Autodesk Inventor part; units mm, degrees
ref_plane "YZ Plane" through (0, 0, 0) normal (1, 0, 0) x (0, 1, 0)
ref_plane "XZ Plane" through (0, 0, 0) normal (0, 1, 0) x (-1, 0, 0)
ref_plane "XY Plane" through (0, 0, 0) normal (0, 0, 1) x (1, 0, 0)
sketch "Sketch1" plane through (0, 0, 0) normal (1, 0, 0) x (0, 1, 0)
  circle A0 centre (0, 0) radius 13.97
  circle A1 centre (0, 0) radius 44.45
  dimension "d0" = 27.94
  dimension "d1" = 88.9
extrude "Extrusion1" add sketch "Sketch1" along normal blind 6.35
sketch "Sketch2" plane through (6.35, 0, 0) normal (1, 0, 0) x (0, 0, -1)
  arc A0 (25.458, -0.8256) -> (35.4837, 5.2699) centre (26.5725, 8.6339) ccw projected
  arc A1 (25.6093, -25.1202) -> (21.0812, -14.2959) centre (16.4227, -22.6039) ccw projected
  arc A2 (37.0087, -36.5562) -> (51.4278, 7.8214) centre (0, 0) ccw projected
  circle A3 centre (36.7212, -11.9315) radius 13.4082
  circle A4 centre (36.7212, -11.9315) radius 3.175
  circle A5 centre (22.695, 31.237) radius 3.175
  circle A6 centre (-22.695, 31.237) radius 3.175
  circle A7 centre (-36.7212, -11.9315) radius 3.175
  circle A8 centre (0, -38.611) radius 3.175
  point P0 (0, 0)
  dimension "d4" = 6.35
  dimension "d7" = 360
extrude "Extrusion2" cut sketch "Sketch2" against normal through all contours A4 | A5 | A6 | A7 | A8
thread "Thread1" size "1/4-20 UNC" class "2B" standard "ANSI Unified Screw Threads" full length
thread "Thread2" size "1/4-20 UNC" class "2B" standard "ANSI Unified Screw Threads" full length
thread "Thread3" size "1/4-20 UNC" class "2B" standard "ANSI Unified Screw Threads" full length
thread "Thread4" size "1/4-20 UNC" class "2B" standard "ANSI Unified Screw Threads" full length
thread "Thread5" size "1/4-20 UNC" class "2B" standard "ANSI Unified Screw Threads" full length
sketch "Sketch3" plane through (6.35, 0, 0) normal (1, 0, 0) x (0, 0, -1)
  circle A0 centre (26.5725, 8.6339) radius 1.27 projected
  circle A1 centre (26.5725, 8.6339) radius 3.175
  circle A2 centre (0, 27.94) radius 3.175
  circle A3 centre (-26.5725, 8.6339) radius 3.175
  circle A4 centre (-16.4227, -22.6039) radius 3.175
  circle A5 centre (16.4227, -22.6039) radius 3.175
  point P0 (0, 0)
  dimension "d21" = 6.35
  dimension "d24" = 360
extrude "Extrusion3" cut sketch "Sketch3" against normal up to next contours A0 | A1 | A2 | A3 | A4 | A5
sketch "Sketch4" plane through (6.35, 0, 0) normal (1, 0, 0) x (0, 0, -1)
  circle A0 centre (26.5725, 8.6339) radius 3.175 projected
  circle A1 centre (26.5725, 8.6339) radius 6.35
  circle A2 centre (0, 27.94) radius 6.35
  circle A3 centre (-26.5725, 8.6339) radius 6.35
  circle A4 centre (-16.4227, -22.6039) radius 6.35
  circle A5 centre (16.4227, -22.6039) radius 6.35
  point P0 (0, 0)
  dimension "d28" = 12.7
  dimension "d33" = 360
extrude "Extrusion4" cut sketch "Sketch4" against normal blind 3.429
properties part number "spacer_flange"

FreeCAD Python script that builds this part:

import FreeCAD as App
import Part
import Sketcher
Q = App.Units.Quantity

doc = App.newDocument("Part")
params = doc.addObject("Spreadsheet::Sheet", "Params")
for row, (alias, value) in enumerate([
    ("sketch1_diameter", "3.5 in"),
    ("sketch1_diameter2", "1.1 in"),
    ("pad1_length", "0.25 in"),
    ("sketch2_diameter", "0.25 in"),
    ("sketch3_diameter", "0.25 in"),
    ("pocket2_length", "0.25 in"),
    ("sketch4_diameter", "0.5 in"),
    ("sketch4_diameter2", "0.25 in"),
    ("pocket3_length", "0.135 in"),
], start=1):
    params.set(f"A{row}", alias)
    params.set(f"B{row}", "=" + value)
    params.setAlias(f"B{row}", alias)

body = doc.addObject("PartDesign::Body", "Body")

# Sketch on YZ plane
sketch1 = doc.addObject("Sketcher::SketchObject", "Sketch")
body.addObject(sketch1)
sketch1.AttachmentSupport = (doc.YZ_Plane, [""])
sketch1.MapMode = "FlatFace"
sketch1.addGeometry(Part.Circle(App.Vector(0, 0, 0), App.Vector(0, 0, 1), 44), False)
sketch1.addGeometry(Part.Circle(App.Vector(0, 0, 0), App.Vector(0, 0, 1), 14), False)
sketch1.addConstraint(Sketcher.Constraint("Coincident", 0, 3, -1, 1))
sketch1.addConstraint(Sketcher.Constraint("Coincident", 1, 3, -1, 1))
sketch1.addConstraint(Sketcher.Constraint("Diameter", 0, Q("3.5 in")))
sketch1.addConstraint(Sketcher.Constraint("Diameter", 1, Q("1.1 in")))
sketch1.setExpression("Constraints[2]", "Params.sketch1_diameter")
sketch1.setExpression("Constraints[3]", "Params.sketch1_diameter2")
pad1 = doc.addObject("PartDesign::Pad", "Pad")
body.addObject(pad1)
pad1.Profile = sketch1
pad1.setExpression("Length", "Params.pad1_length")

# Sketch on YZ plane
sketch2 = doc.addObject("Sketcher::SketchObject", "Sketch001")
body.addObject(sketch2)
sketch2.AttachmentSupport = (doc.YZ_Plane, [""])
sketch2.MapMode = "FlatFace"
sketch2.AttachmentOffset = App.Placement(App.Vector(0, 0, 0.25 * 25.4), App.Rotation())
sketch2.addGeometry(Part.Circle(App.Vector(-11.9, -36.7, 0), App.Vector(0, 0, 1), 3.2), False)
sketch2.addGeometry(Part.Circle(App.Vector(31.2, -22.7, 0), App.Vector(0, 0, 1), 3.2), False)
sketch2.addGeometry(Part.Circle(App.Vector(31.2, 22.7, 0), App.Vector(0, 0, 1), 3.2), False)
sketch2.addGeometry(Part.Circle(App.Vector(-11.9, 36.7, 0), App.Vector(0, 0, 1), 3.2), False)
sketch2.addGeometry(Part.Circle(App.Vector(-38.6, 0, 0), App.Vector(0, 0, 1), 3.2), False)
sketch2.addConstraint(Sketcher.Constraint("Equal", 0, 1))
sketch2.addConstraint(Sketcher.Constraint("Equal", 1, 2))
sketch2.addConstraint(Sketcher.Constraint("Equal", 2, 3))
sketch2.addConstraint(Sketcher.Constraint("Equal", 3, 4))
sketch2.addConstraint(Sketcher.Constraint("Symmetric", 1, 3, 2, 3, -1))
sketch2.addConstraint(Sketcher.Constraint("Symmetric", 0, 3, 3, 3, -1))
sketch2.addConstraint(Sketcher.Constraint("PointOnObject", 4, 3, -1))
sketch2.addConstraint(Sketcher.Constraint("Diameter", 0, Q("0.25 in")))
sketch2.addConstraint(Sketcher.Constraint("DistanceY", 1, 3, 2, 3, Q("1.787 in")))
sketch2.addConstraint(Sketcher.Constraint("DistanceX", -1, 1, 1, 3, Q("1.2298 in")))
sketch2.addConstraint(Sketcher.Constraint("DistanceX", 0, 3, -1, 1, 11.9315))
sketch2.addConstraint(Sketcher.Constraint("DistanceY", 0, 3, -1, 1, 36.7212))
sketch2.addConstraint(Sketcher.Constraint("DistanceX", 4, 3, -1, 1, 38.611))
sketch2.setExpression("Constraints[7]", "Params.sketch2_diameter")
pocket1 = doc.addObject("PartDesign::Pocket", "Pocket")
body.addObject(pocket1)
pocket1.Profile = sketch2
pocket1.Type = "ThroughAll"

# Sketch on YZ plane
sketch3 = doc.addObject("Sketcher::SketchObject", "Sketch002")
body.addObject(sketch3)
sketch3.AttachmentSupport = (doc.YZ_Plane, [""])
sketch3.MapMode = "FlatFace"
sketch3.AttachmentOffset = App.Placement(App.Vector(0, 0, 0.25 * 25.4), App.Rotation())
sketch3.addGeometry(Part.Circle(App.Vector(8.6, -26.6, 0), App.Vector(0, 0, 1), 3.2), False)
sketch3.addGeometry(Part.Circle(App.Vector(27.9, 0, 0), App.Vector(0, 0, 1), 3.2), False)
sketch3.addGeometry(Part.Circle(App.Vector(8.6, 26.6, 0), App.Vector(0, 0, 1), 3.2), False)
sketch3.addGeometry(Part.Circle(App.Vector(-22.6, 16.4, 0), App.Vector(0, 0, 1), 3.2), False)
sketch3.addGeometry(Part.Circle(App.Vector(-22.6, -16.4, 0), App.Vector(0, 0, 1), 3.2), False)
sketch3.addConstraint(Sketcher.Constraint("Equal", 0, 1))
sketch3.addConstraint(Sketcher.Constraint("Equal", 1, 2))
sketch3.addConstraint(Sketcher.Constraint("Equal", 2, 3))
sketch3.addConstraint(Sketcher.Constraint("Equal", 3, 4))
sketch3.addConstraint(Sketcher.Constraint("Symmetric", 0, 3, 2, 3, -1))
sketch3.addConstraint(Sketcher.Constraint("Symmetric", 3, 3, 4, 3, -1))
sketch3.addConstraint(Sketcher.Constraint("PointOnObject", 1, 3, -1))
sketch3.addConstraint(Sketcher.Constraint("Diameter", 0, Q("0.25 in")))
sketch3.addConstraint(Sketcher.Constraint("DistanceX", -1, 1, 1, 3, Q("1.1 in")))
sketch3.addConstraint(Sketcher.Constraint("DistanceY", 3, 3, 2, 3, Q("0.3996 in")))
sketch3.addConstraint(Sketcher.Constraint("DistanceX", -1, 1, 0, 3, 8.634))
sketch3.addConstraint(Sketcher.Constraint("DistanceY", 0, 3, -1, 1, 26.5725))
sketch3.addConstraint(Sketcher.Constraint("DistanceX", 3, 3, -1, 1, 22.604))
sketch3.setExpression("Constraints[7]", "Params.sketch3_diameter")
pocket2 = doc.addObject("PartDesign::Pocket", "Pocket001")
body.addObject(pocket2)
pocket2.Profile = sketch3
pocket2.setExpression("Length", "Params.pocket2_length")

# Sketch on YZ plane
sketch4 = doc.addObject("Sketcher::SketchObject", "Sketch003")
body.addObject(sketch4)
sketch4.AttachmentSupport = (doc.YZ_Plane, [""])
sketch4.MapMode = "FlatFace"
sketch4.AttachmentOffset = App.Placement(App.Vector(0, 0, 0.25 * 25.4), App.Rotation())
sketch4.addGeometry(Part.Circle(App.Vector(8.6, -26.6, 0), App.Vector(0, 0, 1), 6.3), False)
sketch4.addGeometry(Part.Circle(App.Vector(8.6, -26.6, 0), App.Vector(0, 0, 1), 3.2), False)
sketch4.addGeometry(Part.Circle(App.Vector(27.9, 0, 0), App.Vector(0, 0, 1), 6.3), False)
sketch4.addGeometry(Part.Circle(App.Vector(8.6, 26.6, 0), App.Vector(0, 0, 1), 6.3), False)
sketch4.addGeometry(Part.Circle(App.Vector(-22.6, 16.4, 0), App.Vector(0, 0, 1), 6.3), False)
sketch4.addGeometry(Part.Circle(App.Vector(-22.6, -16.4, 0), App.Vector(0, 0, 1), 6.3), False)
sketch4.addConstraint(Sketcher.Constraint("Coincident", 1, 3, 0, 3))
sketch4.addConstraint(Sketcher.Constraint("Equal", 0, 2))
sketch4.addConstraint(Sketcher.Constraint("Equal", 2, 3))
sketch4.addConstraint(Sketcher.Constraint("Equal", 3, 4))
sketch4.addConstraint(Sketcher.Constraint("Equal", 4, 5))
sketch4.addConstraint(Sketcher.Constraint("Symmetric", 0, 3, 3, 3, -1))
sketch4.addConstraint(Sketcher.Constraint("Symmetric", 4, 3, 5, 3, -1))
sketch4.addConstraint(Sketcher.Constraint("PointOnObject", 2, 3, -1))
sketch4.addConstraint(Sketcher.Constraint("Diameter", 0, Q("0.5 in")))
sketch4.addConstraint(Sketcher.Constraint("Diameter", 1, Q("0.25 in")))
sketch4.addConstraint(Sketcher.Constraint("DistanceX", -1, 1, 2, 3, Q("1.1 in")))
sketch4.addConstraint(Sketcher.Constraint("DistanceY", 4, 3, 3, 3, Q("0.3996 in")))
sketch4.addConstraint(Sketcher.Constraint("DistanceX", -1, 1, 0, 3, 8.634))
sketch4.addConstraint(Sketcher.Constraint("DistanceY", 0, 3, -1, 1, 26.5725))
sketch4.addConstraint(Sketcher.Constraint("DistanceX", 4, 3, -1, 1, 22.604))
sketch4.setExpression("Constraints[8]", "Params.sketch4_diameter")
sketch4.setExpression("Constraints[9]", "Params.sketch4_diameter2")
pocket3 = doc.addObject("PartDesign::Pocket", "Pocket002")
body.addObject(pocket3)
pocket3.Profile = sketch4
pocket3.setExpression("Length", "Params.pocket3_length")

doc.recompute()
